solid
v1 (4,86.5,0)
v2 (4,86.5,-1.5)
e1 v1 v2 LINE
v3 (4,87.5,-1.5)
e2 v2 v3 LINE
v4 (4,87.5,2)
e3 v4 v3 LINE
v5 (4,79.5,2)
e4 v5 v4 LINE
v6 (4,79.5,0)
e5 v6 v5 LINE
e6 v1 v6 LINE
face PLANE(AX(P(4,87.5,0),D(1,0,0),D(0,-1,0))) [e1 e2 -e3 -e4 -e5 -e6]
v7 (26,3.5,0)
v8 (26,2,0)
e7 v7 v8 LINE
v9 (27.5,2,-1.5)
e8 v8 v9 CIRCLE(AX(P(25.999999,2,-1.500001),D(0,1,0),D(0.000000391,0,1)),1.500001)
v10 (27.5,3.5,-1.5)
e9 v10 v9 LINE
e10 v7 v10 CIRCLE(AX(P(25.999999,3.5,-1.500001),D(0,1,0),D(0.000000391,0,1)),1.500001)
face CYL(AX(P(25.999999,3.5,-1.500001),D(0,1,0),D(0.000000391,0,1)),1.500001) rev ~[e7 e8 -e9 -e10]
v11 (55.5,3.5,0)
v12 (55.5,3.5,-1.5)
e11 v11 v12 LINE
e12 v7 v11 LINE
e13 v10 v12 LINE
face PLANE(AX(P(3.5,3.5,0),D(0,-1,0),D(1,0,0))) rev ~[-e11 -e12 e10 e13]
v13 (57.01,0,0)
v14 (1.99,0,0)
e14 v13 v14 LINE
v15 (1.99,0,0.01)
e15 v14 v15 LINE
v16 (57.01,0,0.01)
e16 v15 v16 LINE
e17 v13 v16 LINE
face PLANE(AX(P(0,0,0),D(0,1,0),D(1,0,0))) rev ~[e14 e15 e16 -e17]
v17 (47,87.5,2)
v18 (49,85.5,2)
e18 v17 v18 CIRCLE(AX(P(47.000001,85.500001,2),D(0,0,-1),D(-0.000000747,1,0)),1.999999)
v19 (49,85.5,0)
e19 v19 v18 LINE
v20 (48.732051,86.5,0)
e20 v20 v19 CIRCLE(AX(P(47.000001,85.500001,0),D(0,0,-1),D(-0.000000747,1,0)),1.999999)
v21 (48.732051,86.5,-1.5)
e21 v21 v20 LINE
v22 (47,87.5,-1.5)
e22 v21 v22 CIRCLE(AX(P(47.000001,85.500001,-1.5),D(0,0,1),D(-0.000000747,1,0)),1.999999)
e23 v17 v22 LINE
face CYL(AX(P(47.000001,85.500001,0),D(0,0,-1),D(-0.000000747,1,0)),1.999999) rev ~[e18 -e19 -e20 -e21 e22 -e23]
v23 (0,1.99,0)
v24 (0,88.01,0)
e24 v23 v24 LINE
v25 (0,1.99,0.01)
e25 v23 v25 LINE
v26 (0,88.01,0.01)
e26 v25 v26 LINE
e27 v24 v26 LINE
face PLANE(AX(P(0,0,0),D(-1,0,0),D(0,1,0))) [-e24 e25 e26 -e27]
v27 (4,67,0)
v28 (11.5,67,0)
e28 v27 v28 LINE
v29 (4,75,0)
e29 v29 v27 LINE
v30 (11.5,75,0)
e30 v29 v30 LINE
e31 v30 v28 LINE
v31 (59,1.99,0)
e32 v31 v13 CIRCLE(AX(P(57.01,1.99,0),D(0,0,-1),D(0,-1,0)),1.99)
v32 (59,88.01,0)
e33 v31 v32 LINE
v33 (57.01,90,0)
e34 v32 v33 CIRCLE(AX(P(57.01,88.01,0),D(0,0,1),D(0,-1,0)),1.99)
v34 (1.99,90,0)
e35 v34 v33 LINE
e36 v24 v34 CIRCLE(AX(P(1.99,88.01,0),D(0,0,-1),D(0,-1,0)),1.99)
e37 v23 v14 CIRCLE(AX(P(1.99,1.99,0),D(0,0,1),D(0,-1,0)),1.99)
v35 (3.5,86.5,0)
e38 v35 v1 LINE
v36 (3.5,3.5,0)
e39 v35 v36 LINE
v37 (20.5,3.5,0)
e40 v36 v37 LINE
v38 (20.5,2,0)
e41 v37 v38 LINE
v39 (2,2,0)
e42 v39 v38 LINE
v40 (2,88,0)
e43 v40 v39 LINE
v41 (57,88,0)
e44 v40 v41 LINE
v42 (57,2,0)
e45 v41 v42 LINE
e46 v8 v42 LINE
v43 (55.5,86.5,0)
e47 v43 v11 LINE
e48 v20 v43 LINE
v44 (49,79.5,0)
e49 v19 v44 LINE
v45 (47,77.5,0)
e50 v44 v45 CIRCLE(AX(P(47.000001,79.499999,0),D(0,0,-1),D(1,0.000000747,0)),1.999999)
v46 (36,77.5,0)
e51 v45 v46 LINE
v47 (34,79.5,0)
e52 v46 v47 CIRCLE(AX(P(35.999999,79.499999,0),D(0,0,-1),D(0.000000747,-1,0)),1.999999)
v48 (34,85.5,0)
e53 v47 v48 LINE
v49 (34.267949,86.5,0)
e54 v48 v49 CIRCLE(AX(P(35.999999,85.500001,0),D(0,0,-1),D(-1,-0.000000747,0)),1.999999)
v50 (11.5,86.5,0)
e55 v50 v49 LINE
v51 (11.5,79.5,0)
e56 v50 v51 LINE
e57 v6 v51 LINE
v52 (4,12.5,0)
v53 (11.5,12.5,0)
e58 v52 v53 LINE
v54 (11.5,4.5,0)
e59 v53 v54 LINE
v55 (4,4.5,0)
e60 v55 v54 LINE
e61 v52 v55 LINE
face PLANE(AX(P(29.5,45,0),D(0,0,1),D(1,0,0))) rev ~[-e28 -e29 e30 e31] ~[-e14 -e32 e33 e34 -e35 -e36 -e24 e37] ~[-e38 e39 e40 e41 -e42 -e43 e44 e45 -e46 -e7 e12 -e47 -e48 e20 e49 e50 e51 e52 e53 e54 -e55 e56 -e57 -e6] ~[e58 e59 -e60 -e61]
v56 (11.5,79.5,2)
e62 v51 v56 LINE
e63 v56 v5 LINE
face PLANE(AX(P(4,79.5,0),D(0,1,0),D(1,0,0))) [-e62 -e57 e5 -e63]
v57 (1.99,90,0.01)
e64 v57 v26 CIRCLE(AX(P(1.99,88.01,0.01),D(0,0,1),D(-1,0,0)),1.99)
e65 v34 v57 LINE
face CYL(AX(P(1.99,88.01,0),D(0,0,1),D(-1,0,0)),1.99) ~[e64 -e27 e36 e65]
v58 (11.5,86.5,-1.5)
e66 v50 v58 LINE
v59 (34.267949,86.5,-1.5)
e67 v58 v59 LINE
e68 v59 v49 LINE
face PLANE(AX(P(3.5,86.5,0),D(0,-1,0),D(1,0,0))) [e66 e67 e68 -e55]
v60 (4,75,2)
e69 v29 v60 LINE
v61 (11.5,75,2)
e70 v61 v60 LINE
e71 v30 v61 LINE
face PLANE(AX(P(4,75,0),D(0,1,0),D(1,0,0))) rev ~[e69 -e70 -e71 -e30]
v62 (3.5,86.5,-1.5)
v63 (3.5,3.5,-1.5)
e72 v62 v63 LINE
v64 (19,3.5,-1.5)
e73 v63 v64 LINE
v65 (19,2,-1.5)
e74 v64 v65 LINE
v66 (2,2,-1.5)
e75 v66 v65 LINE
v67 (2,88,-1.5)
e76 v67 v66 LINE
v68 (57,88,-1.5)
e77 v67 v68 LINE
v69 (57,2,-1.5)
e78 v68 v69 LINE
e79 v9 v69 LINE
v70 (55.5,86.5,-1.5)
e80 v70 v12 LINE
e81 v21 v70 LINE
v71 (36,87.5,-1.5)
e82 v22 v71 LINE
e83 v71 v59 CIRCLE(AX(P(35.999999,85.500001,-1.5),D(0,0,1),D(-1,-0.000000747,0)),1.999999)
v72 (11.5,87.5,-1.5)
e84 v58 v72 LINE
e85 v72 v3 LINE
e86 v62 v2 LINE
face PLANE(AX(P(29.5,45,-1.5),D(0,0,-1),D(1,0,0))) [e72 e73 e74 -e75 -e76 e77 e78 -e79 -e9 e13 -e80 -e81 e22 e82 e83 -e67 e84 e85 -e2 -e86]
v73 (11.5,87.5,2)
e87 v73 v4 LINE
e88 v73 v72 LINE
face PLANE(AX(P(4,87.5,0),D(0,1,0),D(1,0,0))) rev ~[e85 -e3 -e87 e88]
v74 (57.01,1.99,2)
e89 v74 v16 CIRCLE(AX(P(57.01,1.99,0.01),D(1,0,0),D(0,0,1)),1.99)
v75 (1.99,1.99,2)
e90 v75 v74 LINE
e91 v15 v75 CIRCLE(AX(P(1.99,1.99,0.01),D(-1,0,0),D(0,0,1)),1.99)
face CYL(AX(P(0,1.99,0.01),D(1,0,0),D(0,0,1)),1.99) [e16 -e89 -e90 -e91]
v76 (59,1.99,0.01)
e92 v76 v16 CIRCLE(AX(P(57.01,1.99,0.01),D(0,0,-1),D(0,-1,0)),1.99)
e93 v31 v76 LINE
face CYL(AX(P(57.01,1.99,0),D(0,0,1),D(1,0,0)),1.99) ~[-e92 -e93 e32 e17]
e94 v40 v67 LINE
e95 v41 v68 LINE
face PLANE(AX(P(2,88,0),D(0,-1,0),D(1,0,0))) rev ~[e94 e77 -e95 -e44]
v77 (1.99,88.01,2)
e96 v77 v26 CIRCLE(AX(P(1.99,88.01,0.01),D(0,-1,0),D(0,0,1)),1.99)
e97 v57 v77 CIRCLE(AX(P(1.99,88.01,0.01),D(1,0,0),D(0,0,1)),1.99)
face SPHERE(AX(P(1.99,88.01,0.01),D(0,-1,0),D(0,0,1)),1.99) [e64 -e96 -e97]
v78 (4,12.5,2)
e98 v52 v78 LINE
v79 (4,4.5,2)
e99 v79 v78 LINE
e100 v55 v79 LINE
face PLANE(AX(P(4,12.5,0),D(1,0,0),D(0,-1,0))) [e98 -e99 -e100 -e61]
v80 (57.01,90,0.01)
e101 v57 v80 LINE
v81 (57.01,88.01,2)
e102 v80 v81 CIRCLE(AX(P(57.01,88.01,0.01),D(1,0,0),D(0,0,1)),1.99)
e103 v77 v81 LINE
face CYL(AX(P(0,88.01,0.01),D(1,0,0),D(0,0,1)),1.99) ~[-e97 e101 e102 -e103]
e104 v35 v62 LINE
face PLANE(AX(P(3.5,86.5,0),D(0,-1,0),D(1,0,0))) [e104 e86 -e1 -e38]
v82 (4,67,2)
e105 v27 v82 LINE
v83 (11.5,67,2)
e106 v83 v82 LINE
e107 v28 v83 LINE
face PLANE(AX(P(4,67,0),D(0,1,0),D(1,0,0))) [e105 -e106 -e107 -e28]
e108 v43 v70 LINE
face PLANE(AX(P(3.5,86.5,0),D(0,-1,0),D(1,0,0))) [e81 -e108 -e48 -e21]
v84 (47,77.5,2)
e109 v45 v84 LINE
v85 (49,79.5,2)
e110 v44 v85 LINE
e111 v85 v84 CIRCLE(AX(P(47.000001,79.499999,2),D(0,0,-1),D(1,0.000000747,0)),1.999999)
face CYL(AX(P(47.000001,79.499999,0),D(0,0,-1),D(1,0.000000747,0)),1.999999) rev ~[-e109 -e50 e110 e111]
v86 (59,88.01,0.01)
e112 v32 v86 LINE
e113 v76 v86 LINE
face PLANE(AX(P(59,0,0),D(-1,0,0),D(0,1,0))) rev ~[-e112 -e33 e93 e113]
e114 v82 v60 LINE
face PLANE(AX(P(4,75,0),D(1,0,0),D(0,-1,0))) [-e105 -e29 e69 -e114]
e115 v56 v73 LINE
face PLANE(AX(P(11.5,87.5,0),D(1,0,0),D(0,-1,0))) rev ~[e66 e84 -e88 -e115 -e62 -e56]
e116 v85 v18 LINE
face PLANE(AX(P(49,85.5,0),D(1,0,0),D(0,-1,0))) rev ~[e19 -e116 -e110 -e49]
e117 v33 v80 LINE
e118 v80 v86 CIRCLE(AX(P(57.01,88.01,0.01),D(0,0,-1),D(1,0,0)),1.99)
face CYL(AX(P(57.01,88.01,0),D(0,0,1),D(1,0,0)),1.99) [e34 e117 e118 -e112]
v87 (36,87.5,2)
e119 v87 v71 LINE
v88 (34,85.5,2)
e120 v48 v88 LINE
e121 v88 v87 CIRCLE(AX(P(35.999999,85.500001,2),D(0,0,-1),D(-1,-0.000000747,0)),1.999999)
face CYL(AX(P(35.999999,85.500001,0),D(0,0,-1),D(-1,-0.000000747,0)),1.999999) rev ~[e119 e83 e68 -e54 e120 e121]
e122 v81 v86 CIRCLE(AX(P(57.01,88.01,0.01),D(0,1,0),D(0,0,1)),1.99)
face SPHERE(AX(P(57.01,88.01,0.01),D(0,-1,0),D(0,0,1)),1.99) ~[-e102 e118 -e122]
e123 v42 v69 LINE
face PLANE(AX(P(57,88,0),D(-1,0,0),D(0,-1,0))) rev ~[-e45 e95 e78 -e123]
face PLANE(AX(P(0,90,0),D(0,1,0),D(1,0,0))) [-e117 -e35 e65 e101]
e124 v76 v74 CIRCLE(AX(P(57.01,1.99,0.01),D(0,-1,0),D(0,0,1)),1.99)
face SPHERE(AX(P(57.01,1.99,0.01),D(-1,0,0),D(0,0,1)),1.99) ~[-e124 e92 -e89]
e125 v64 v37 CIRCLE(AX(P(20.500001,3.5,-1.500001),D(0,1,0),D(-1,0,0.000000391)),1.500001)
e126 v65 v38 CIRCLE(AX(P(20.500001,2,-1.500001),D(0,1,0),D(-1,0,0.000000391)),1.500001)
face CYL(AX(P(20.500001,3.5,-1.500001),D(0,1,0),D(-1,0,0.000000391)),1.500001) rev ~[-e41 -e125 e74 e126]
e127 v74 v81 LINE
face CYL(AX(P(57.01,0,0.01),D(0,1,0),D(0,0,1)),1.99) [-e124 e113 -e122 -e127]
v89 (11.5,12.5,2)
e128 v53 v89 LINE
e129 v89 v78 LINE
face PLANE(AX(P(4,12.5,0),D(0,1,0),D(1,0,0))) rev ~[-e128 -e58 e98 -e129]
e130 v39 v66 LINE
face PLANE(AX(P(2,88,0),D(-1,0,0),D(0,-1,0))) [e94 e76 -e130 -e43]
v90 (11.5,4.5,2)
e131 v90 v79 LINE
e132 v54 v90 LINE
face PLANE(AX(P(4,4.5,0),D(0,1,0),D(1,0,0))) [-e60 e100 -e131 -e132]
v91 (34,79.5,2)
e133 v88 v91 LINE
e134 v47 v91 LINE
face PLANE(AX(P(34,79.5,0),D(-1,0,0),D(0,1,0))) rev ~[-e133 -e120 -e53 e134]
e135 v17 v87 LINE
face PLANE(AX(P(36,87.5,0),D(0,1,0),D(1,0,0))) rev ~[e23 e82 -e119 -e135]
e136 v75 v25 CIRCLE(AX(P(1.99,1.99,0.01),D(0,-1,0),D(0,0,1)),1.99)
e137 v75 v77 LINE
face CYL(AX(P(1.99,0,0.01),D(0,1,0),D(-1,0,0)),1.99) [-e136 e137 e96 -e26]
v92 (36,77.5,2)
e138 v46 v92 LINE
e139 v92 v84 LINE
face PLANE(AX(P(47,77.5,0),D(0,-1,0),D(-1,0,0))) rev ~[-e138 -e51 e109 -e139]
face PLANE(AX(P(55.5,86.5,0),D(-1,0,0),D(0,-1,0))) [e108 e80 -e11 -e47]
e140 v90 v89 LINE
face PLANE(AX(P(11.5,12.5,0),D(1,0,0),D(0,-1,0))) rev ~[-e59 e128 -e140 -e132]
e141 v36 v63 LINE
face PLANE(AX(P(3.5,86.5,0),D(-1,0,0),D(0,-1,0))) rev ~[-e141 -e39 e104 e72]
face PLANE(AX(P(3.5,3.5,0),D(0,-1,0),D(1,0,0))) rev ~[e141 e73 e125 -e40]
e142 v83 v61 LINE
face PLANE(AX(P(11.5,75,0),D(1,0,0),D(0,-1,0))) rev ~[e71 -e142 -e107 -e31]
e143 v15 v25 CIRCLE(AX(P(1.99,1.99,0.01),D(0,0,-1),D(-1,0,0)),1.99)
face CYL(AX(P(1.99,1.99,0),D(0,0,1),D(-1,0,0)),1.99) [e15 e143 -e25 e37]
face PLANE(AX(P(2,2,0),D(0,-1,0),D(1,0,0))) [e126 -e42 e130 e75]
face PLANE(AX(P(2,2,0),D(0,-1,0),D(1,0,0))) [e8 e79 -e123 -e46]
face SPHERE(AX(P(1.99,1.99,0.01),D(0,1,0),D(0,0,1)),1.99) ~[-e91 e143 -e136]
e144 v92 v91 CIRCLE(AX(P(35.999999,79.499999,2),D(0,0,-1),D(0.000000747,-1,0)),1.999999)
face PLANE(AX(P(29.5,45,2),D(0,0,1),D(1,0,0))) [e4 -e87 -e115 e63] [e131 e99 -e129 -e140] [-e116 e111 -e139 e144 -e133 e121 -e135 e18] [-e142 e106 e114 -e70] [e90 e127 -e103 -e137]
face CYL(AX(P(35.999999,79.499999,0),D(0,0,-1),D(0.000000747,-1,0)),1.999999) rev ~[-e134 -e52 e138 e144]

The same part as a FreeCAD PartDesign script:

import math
import FreeCAD as App
import Part
import Sketcher
Q = App.Units.Quantity


def edges_at(feature, points):
    """Names of the edges that pass closest to the given points."""
    edges = feature.Shape.Edges
    near = lambda p: min(range(len(edges)), key=lambda i: edges[i].distToShape(Part.Vertex(*p))[0])
    return sorted({f"Edge{near(p) + 1}" for p in points})


def add_polygon(sketch, points):
    """Adds a closed chain of lines whose ends are joined by coincident constraints."""
    first, n = sketch.GeometryCount, len(points)
    for a, b in zip(points, points[1:] + points[:1]):
        sketch.addGeometry(Part.LineSegment(App.Vector(*a, 0), App.Vector(*b, 0)), False)
    for i in range(n):
        sketch.addConstraint(Sketcher.Constraint("Coincident", first + i, 2, first + (i + 1) % n, 1))

doc = App.newDocument("Part")
params = doc.addObject("Spreadsheet::Sheet", "Params")
for row, (alias, value) in enumerate([
    ("sketch1_width", "59 mm"),
    ("sketch1_height", "90 mm"),
    ("pad1_length", "2 mm"),
    ("sketch2_width", "55 mm"),
    ("sketch2_width2", "52 mm"),
    ("sketch2_height", "86 mm"),
    ("sketch2_height2", "83 mm"),
    ("pad2_length", "1.5 mm"),
    ("sketch3_radius", "1.999999 mm"),
    ("sketch3_width", "11 mm"),
    ("sketch3_height", "8 mm"),
    ("sketch3_width2", "7.5 mm"),
    ("fillet_radius", "1.99 mm"),
    ("sketch4_radius", "1.500001 mm"),
    ("sketch4_width", "8.5 mm"),
], start=1):
    params.set(f"A{row}", alias)
    params.set(f"B{row}", "=" + value)
    params.setAlias(f"B{row}", alias)

body = doc.addObject("PartDesign::Body", "Body")

# Sketch on XY plane
sketch1 = doc.addObject("Sketcher::SketchObject", "Sketch")
body.addObject(sketch1)
sketch1.AttachmentSupport = (doc.XY_Plane, [""])
sketch1.MapMode = "FlatFace"
add_polygon(sketch1, [(0, 90), (0, 0), (59, 0), (59, 90)])  # lines 0-3
sketch1.addConstraint([
    Sketcher.Constraint("Vertical", 0),
    Sketcher.Constraint("Horizontal", 1),
    Sketcher.Constraint("Vertical", 2),
    Sketcher.Constraint("Horizontal", 3),
    Sketcher.Constraint("Coincident", 0, 2, -1, 1),
    Sketcher.Constraint("DistanceX", 1, 1, 1, 2, Q("59 mm")),
    Sketcher.Constraint("DistanceY", 0, 2, 0, 1, Q("90 mm")),
])
sketch1.setExpression("Constraints[9]", "Params.sketch1_width")
sketch1.setExpression("Constraints[10]", "Params.sketch1_height")
pad1 = doc.addObject("PartDesign::Pad", "Pad")
body.addObject(pad1)
pad1.Profile = sketch1
pad1.setExpression("Length", "Params.pad1_length")

# Sketch on XY plane
sketch2 = doc.addObject("Sketcher::SketchObject", "Sketch001")
body.addObject(sketch2)
sketch2.AttachmentSupport = (doc.XY_Plane, [""])
sketch2.MapMode = "FlatFace"
add_polygon(sketch2, [(2, 2), (2, 88), (57, 88), (57, 2)])  # lines 0-3
add_polygon(sketch2, [(56, 86), (4, 86), (4, 4), (56, 4)])  # lines 4-7
sketch2.addConstraint([
    Sketcher.Constraint("Vertical", 0),
    Sketcher.Constraint("Horizontal", 1),
    Sketcher.Constraint("Vertical", 2),
    Sketcher.Constraint("Horizontal", 3),
    Sketcher.Constraint("Horizontal", 4),
    Sketcher.Constraint("Vertical", 5),
    Sketcher.Constraint("Horizontal", 6),
    Sketcher.Constraint("Vertical", 7),
    Sketcher.Constraint("DistanceX", 1, 1, 1, 2, Q("55 mm")),
    Sketcher.Constraint("DistanceX", 4, 2, 4, 1, Q("52 mm")),
    Sketcher.Constraint("DistanceY", 0, 1, 0, 2, Q("86 mm")),
    Sketcher.Constraint("DistanceY", 5, 2, 5, 1, Q("83 mm")),
    Sketcher.Constraint("DistanceX", -1, 1, 0, 2, Q("2 mm")),
    Sketcher.Constraint("DistanceY", -1, 1, 0, 2, Q("88 mm")),
    Sketcher.Constraint("DistanceX", -1, 1, 4, 2, Q("3.5 mm")),
    Sketcher.Constraint("DistanceY", -1, 1, 4, 2, Q("86.5 mm")),
])
sketch2.setExpression("Constraints[16]", "Params.sketch2_width")
sketch2.setExpression("Constraints[17]", "Params.sketch2_width2")
sketch2.setExpression("Constraints[18]", "Params.sketch2_height")
sketch2.setExpression("Constraints[19]", "Params.sketch2_height2")
pad2 = doc.addObject("PartDesign::Pad", "Pad001")
body.addObject(pad2)
pad2.Profile = sketch2
pad2.setExpression("Length", "Params.pad2_length")
pad2.Reversed = True

# Sketch on XY plane
sketch3 = doc.addObject("Sketcher::SketchObject", "Sketch002")
body.addObject(sketch3)
sketch3.AttachmentSupport = (doc.XY_Plane, [""])
sketch3.MapMode = "FlatFace"
add_polygon(sketch3, [(4, 4.5), (4, 12.5), (11.5, 12.5), (11.5, 4.5)])  # lines 0-3
add_polygon(sketch3, [(4, 67), (4, 75), (11.5, 75), (11.5, 67)])  # lines 4-7
add_polygon(sketch3, [(4, 79.5), (4, 87.5), (11.5, 87.5), (11.5, 79.5)])  # lines 8-11
sketch3.addGeometry(Part.LineSegment(App.Vector(34, 79.5, 0), App.Vector(34, 85.5, 0)), False)  # 12
sketch3.addGeometry(Part.ArcOfCircle(Part.Circle(App.Vector(36, 85.5, 0), App.Vector(0, 0, 1), 2), math.radians(90), math.radians(180)), False)  # 13
sketch3.addGeometry(Part.LineSegment(App.Vector(36, 87.5, 0), App.Vector(47, 87.5, 0)), False)  # 14
sketch3.addGeometry(Part.ArcOfCircle(Part.Circle(App.Vector(47, 85.5, 0), App.Vector(0, 0, 1), 2), math.radians(0), math.radians(90)), False)  # 15
sketch3.addGeometry(Part.LineSegment(App.Vector(49, 85.5, 0), App.Vector(49, 79.5, 0)), False)  # 16
sketch3.addGeometry(Part.ArcOfCircle(Part.Circle(App.Vector(47, 79.5, 0), App.Vector(0, 0, 1), 2), math.radians(-90), math.radians(0)), False)  # 17
sketch3.addGeometry(Part.LineSegment(App.Vector(47, 77.5, 0), App.Vector(36, 77.5, 0)), False)  # 18
sketch3.addGeometry(Part.ArcOfCircle(Part.Circle(App.Vector(36, 79.5, 0), App.Vector(0, 0, 1), 2), math.radians(180), math.radians(270)), False)  # 19
sketch3.addConstraint([
    Sketcher.Constraint("Tangent", 12, 2, 13, 2),
    Sketcher.Constraint("Tangent", 13, 1, 14, 1),
    Sketcher.Constraint("Tangent", 14, 2, 15, 2),
    Sketcher.Constraint("Tangent", 15, 1, 16, 1),
    Sketcher.Constraint("Tangent", 16, 2, 17, 2),
    Sketcher.Constraint("Tangent", 17, 1, 18, 1),
    Sketcher.Constraint("Tangent", 18, 2, 19, 2),
    Sketcher.Constraint("Tangent", 19, 1, 12, 1),
    Sketcher.Constraint("Vertical", 0),
    Sketcher.Constraint("Horizontal", 1),
    Sketcher.Constraint("Vertical", 2),
    Sketcher.Constraint("Horizontal", 3),
    Sketcher.Constraint("Vertical", 4),
    Sketcher.Constraint("Horizontal", 5),
    Sketcher.Constraint("Vertical", 6),
    Sketcher.Constraint("Horizontal", 7),
    Sketcher.Constraint("Vertical", 8),
    Sketcher.Constraint("Horizontal", 9),
    Sketcher.Constraint("Vertical", 10),
    Sketcher.Constraint("Horizontal", 11),
    Sketcher.Constraint("Vertical", 12),
    Sketcher.Constraint("Horizontal", 14),
    Sketcher.Constraint("Vertical", 16),
    Sketcher.Constraint("Horizontal", 18),
    Sketcher.Constraint("Equal", 13, 15),
    Sketcher.Constraint("Equal", 15, 17),
    Sketcher.Constraint("Equal", 17, 19),
    Sketcher.Constraint("Horizontal", 19, 3, 10, 2),
    Sketcher.Constraint("Horizontal", 9, 2, 13, 1),
    Sketcher.Constraint("Vertical", 3, 2, 4, 2),
    Sketcher.Constraint("Vertical", 2, 2, 5, 2),
    Sketcher.Constraint("Vertical", 7, 2, 8, 2),
    Sketcher.Constraint("Vertical", 6, 2, 9, 2),
    Sketcher.Constraint("Equal", 2, 4),
    Sketcher.Constraint("Equal", 6, 8),
    Sketcher.Constraint("Radius", 13, Q("1.999999 mm")),
    Sketcher.Constraint("DistanceX", 14, 1, 14, 2, Q("11 mm")),
    Sketcher.Constraint("DistanceY", 0, 1, 0, 2, Q("8 mm")),
    Sketcher.Constraint("DistanceX", 1, 1, 1, 2, Q("7.5 mm")),
    Sketcher.Constraint("DistanceX", -1, 1, 13, 3, Q("35.999999 mm")),
    Sketcher.Constraint("DistanceX", -1, 1, 0, 2, Q("4 mm")),
    Sketcher.Constraint("DistanceY", -1, 1, 4, 2, Q("75 mm")),
    Sketcher.Constraint("DistanceY", 0, 2, 19, 3, Q("66.999999 mm")),
    Sketcher.Constraint("DistanceY", -1, 1, 13, 3, Q("85.500001 mm")),
])
sketch3.setExpression("Constraints[47]", "Params.sketch3_radius")
sketch3.setExpression("Constraints[48]", "Params.sketch3_width")
sketch3.setExpression("Constraints[49]", "Params.sketch3_height")
sketch3.setExpression("Constraints[50]", "Params.sketch3_width2")
pocket1 = doc.addObject("PartDesign::Pocket", "Pocket")
body.addObject(pocket1)
pocket1.Profile = sketch3
pocket1.Type = "ThroughAll"
pocket1.Midplane = True
doc.recompute()

fillet = doc.addObject("PartDesign::Fillet", "Fillet")
body.addObject(fillet)
fillet.Base = (pocket1, edges_at(pocket1, [
    (0, 45, 2),
    (29.5, 0, 2),
    (59, 45, 2),
    (29.5, 90, 2),
    (59, 0, 1),
    (0, 0, 1),
    (59, 90, 1),
    (0, 90, 1),
]))
fillet.setExpression("Radius", "Params.fillet_radius")

# Sketch on XZ plane
sketch4 = doc.addObject("Sketcher::SketchObject", "Sketch003")
body.addObject(sketch4)
sketch4.AttachmentSupport = (doc.XZ_Plane, [""])
sketch4.MapMode = "FlatFace"
sketch4.AttachmentOffset = App.Placement(App.Vector(0, 0, -3.5), App.Rotation())
sketch4.addGeometry([
    Part.ArcOfCircle(Part.Circle(App.Vector(26, -1.5, 0), App.Vector(0, 0, 1), 1.5), math.radians(0), math.radians(90)),
    Part.LineSegment(App.Vector(27.5, -1.5, 0), App.Vector(19, -1.5, 0)),
    Part.ArcOfCircle(Part.Circle(App.Vector(20.5, -1.5, 0), App.Vector(0, 0, 1), 1.5), math.radians(90), math.radians(180)),
    Part.LineSegment(App.Vector(20.5, 0, 0), App.Vector(26, 0, 0)),
], False)
sketch4.addConstraint([
    Sketcher.Constraint("Coincident", 0, 1, 1, 1),
    Sketcher.Constraint("Coincident", 1, 2, 2, 2),
    Sketcher.Constraint("Tangent", 2, 1, 3, 1),
    Sketcher.Constraint("Tangent", 3, 2, 0, 2),
    Sketcher.Constraint("Horizontal", 1),
    Sketcher.Constraint("Horizontal", 3),
    Sketcher.Constraint("Equal", 0, 2),
    Sketcher.Constraint("PointOnObject", 2, 1, -1),
    Sketcher.Constraint("Horizontal", 2, 3, 0, 1),
    Sketcher.Constraint("Radius", 0, Q("1.500001 mm")),
    Sketcher.Constraint("DistanceX", 1, 2, 1, 1, Q("8.5 mm")),
    Sketcher.Constraint("DistanceX", -1, 1, 0, 3, Q("25.999999 mm")),
])
sketch4.setExpression("Constraints[9]", "Params.sketch4_radius")
sketch4.setExpression("Constraints[10]", "Params.sketch4_width")
pocket2 = doc.addObject("PartDesign::Pocket", "Pocket001")
body.addObject(pocket2)
pocket2.Profile = sketch4
pocket2.Type = "ThroughAll"
pocket2.Reversed = True

doc.recompute()
